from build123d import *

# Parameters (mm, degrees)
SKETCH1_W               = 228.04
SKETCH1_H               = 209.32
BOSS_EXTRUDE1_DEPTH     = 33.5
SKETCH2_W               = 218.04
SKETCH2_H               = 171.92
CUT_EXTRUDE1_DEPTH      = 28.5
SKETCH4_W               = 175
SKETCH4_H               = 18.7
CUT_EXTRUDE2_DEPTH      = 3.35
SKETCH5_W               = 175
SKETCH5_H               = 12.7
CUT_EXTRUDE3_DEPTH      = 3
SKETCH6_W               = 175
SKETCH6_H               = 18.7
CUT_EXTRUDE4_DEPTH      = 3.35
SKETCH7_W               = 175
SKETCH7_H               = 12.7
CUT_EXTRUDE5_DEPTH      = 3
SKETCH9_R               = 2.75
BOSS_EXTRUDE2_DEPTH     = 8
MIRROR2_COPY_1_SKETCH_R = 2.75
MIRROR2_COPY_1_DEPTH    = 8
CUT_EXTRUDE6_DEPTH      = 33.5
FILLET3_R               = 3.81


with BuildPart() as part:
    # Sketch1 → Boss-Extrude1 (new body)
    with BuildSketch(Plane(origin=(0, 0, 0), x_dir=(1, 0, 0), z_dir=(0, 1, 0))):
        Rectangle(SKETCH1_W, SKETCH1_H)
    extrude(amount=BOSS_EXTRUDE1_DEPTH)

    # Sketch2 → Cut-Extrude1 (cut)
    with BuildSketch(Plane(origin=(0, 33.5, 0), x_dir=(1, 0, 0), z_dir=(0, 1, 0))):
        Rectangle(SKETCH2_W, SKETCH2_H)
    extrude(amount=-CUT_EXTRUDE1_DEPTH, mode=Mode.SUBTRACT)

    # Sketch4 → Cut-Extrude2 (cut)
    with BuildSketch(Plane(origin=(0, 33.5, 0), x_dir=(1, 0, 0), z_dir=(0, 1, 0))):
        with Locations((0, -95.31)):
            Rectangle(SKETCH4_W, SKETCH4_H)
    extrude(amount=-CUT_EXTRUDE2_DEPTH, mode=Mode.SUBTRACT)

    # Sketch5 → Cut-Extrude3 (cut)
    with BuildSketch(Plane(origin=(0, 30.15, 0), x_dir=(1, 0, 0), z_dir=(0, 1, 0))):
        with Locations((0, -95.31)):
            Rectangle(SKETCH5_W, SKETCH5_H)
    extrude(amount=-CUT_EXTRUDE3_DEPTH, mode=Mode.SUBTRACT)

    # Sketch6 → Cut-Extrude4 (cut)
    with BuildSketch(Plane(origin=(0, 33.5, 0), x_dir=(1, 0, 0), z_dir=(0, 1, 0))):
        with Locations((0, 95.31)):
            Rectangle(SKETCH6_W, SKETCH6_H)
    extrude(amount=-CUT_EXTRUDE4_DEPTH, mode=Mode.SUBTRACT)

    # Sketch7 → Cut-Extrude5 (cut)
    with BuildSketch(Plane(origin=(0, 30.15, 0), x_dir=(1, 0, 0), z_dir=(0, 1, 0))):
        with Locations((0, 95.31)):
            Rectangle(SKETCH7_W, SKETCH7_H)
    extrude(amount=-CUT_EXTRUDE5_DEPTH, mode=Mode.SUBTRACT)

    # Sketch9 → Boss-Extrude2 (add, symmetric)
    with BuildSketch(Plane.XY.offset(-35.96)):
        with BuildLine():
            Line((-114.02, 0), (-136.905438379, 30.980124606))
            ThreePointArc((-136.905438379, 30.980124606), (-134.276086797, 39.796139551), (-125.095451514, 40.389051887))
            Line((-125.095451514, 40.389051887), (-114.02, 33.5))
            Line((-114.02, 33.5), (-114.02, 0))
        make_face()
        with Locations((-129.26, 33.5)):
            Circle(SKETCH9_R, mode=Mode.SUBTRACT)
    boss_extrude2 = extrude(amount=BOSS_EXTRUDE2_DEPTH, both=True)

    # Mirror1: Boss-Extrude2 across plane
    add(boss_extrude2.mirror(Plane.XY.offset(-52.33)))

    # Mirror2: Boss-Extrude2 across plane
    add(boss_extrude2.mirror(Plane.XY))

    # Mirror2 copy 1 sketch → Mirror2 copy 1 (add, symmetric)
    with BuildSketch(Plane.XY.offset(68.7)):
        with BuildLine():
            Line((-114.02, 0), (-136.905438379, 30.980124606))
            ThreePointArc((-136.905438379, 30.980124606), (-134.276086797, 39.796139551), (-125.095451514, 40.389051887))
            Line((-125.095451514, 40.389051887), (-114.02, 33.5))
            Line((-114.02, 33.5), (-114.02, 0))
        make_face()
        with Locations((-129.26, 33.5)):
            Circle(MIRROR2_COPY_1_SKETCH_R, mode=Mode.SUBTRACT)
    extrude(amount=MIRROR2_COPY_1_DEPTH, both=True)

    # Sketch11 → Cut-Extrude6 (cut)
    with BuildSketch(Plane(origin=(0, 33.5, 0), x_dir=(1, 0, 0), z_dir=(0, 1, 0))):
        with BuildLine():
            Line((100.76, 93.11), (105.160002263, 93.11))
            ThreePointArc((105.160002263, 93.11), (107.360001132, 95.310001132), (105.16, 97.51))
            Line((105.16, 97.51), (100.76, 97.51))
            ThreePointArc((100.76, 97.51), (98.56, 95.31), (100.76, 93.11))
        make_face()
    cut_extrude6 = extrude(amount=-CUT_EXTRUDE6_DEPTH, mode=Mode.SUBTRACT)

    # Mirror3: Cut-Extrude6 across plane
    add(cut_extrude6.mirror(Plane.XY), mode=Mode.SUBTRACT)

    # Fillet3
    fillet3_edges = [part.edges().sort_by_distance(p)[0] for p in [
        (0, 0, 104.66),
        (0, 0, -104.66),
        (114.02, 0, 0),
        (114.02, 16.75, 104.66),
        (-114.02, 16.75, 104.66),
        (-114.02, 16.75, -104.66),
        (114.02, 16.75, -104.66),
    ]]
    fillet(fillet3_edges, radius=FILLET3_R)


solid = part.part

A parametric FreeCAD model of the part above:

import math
import FreeCAD as App
import Part
import Sketcher
from FreeCAD import Vector
Q = App.Units.Quantity


def edges_at(feature, points):
    """Names of the edges that pass closest to the given points."""
    edges = feature.Shape.Edges
    near = lambda p: min(range(len(edges)), key=lambda i: edges[i].distToShape(Part.Vertex(*p))[0])
    return sorted({f"Edge{near(p) + 1}" for p in points})

doc = App.newDocument("Part")
params = doc.addObject("Spreadsheet::Sheet", "Params")
for row, (alias, value) in enumerate([
    ("sketch1_width", "228.04 mm"),
    ("sketch1_height", "209.32 mm"),
    ("pad1_length", "33.5 mm"),
    ("sketch2_width", "218.04 mm"),
    ("sketch2_height", "171.92 mm"),
    ("pocket1_length", "28.5 mm"),
    ("sketch3_width", "175 mm"),
    ("sketch3_height", "18.7 mm"),
    ("pocket2_length", "3.35 mm"),
    ("sketch4_width", "175 mm"),
    ("sketch4_height", "12.7 mm"),
    ("pocket3_length", "3 mm"),
    ("sketch5_width", "175 mm"),
    ("sketch5_height", "18.7 mm"),
    ("pocket4_length", "3.35 mm"),
    ("sketch6_width", "175 mm"),
    ("sketch6_height", "12.7 mm"),
    ("pocket5_length", "3 mm"),
    ("sketch7_diameter", "5.5 mm"),
    ("sketch7_radius", "8.05 mm"),
    ("sketch7_height", "33.5 mm"),
    ("pad2_length", "16 mm"),
    ("sketch8_diameter", "5.5 mm"),
    ("sketch8_radius", "8.05 mm"),
    ("sketch8_height", "33.5 mm"),
    ("pad3_length", "16 mm"),
    ("sketch9_radius", "2.2 mm"),
    ("sketch9_width", "4.4 mm"),
    ("pocket6_length", "33.5 mm"),
    ("fillet_radius", "3.81 mm"),
], start=1):
    params.set(f"A{row}", alias)
    params.set(f"B{row}", "=" + value)
    params.setAlias(f"B{row}", alias)

body = doc.addObject("PartDesign::Body", "Body")

# Sketch on XZ plane
sketch1 = body.newObject("Sketcher::SketchObject", "Sketch")
sketch1.AttachmentSupport = (doc.getObject("XZ_Plane"), [""])
sketch1.MapMode = "FlatFace"
sketch1.addGeometry(Part.LineSegment(Vector(-114, -105, 0), Vector(-114, 105, 0)), False)
sketch1.addGeometry(Part.LineSegment(Vector(-114, 105, 0), Vector(114, 105, 0)), False)
sketch1.addGeometry(Part.LineSegment(Vector(114, 105, 0), Vector(114, -105, 0)), False)
sketch1.addGeometry(Part.LineSegment(Vector(114, -105, 0), Vector(-114, -105, 0)), False)
sketch1.addConstraint(Sketcher.Constraint("Coincident", 0, 2, 1, 1))
sketch1.addConstraint(Sketcher.Constraint("Coincident", 1, 2, 2, 1))
sketch1.addConstraint(Sketcher.Constraint("Coincident", 2, 2, 3, 1))
sketch1.addConstraint(Sketcher.Constraint("Coincident", 3, 2, 0, 1))
sketch1.addConstraint(Sketcher.Constraint("Vertical", 0))
sketch1.addConstraint(Sketcher.Constraint("Horizontal", 1))
sketch1.addConstraint(Sketcher.Constraint("Vertical", 2))
sketch1.addConstraint(Sketcher.Constraint("Horizontal", 3))
sketch1.addConstraint(Sketcher.Constraint("Symmetric", 0, 2, 2, 2, -1, 1))
sketch1.addConstraint(Sketcher.Constraint("DistanceX", 1, 1, 1, 2, Q("228.04 mm")))
sketch1.addConstraint(Sketcher.Constraint("DistanceY", 0, 1, 0, 2, Q("209.32 mm")))
sketch1.setExpression("Constraints[9]", "Params.sketch1_width")
sketch1.setExpression("Constraints[10]", "Params.sketch1_height")
pad1 = body.newObject("PartDesign::Pad", "Pad")
pad1.Profile = sketch1
pad1.setExpression("Length", "Params.pad1_length")
pad1.Reversed = True

# Sketch on XZ plane
sketch2 = body.newObject("Sketcher::SketchObject", "Sketch001")
sketch2.AttachmentSupport = (doc.getObject("XZ_Plane"), [""])
sketch2.MapMode = "FlatFace"
sketch2.AttachmentOffset = App.Placement(Vector(0, 0, -33.5), App.Rotation())
sketch2.addGeometry(Part.LineSegment(Vector(-109, -86, 0), Vector(-109, 86, 0)), False)
sketch2.addGeometry(Part.LineSegment(Vector(-109, 86, 0), Vector(109, 86, 0)), False)
sketch2.addGeometry(Part.LineSegment(Vector(109, 86, 0), Vector(109, -86, 0)), False)
sketch2.addGeometry(Part.LineSegment(Vector(109, -86, 0), Vector(-109, -86, 0)), False)
sketch2.addConstraint(Sketcher.Constraint("Coincident", 0, 2, 1, 1))
sketch2.addConstraint(Sketcher.Constraint("Coincident", 1, 2, 2, 1))
sketch2.addConstraint(Sketcher.Constraint("Coincident", 2, 2, 3, 1))
sketch2.addConstraint(Sketcher.Constraint("Coincident", 3, 2, 0, 1))
sketch2.addConstraint(Sketcher.Constraint("Vertical", 0))
sketch2.addConstraint(Sketcher.Constraint("Horizontal", 1))
sketch2.addConstraint(Sketcher.Constraint("Vertical", 2))
sketch2.addConstraint(Sketcher.Constraint("Horizontal", 3))
sketch2.addConstraint(Sketcher.Constraint("Symmetric", 0, 2, 2, 2, -1, 1))
sketch2.addConstraint(Sketcher.Constraint("DistanceX", 1, 1, 1, 2, Q("218.04 mm")))
sketch2.addConstraint(Sketcher.Constraint("DistanceY", 0, 1, 0, 2, Q("171.92 mm")))
sketch2.setExpression("Constraints[9]", "Params.sketch2_width")
sketch2.setExpression("Constraints[10]", "Params.sketch2_height")
pocket1 = body.newObject("PartDesign::Pocket", "Pocket")
pocket1.Profile = sketch2
pocket1.setExpression("Length", "Params.pocket1_length")
pocket1.Reversed = True

# Sketch on XZ plane
sketch3 = body.newObject("Sketcher::SketchObject", "Sketch002")
sketch3.AttachmentSupport = (doc.getObject("XZ_Plane"), [""])
sketch3.MapMode = "FlatFace"
sketch3.AttachmentOffset = App.Placement(Vector(0, 0, -33.5), App.Rotation())
sketch3.addGeometry(Part.LineSegment(Vector(-88, 86, 0), Vector(-88, 105, 0)), False)
sketch3.addGeometry(Part.LineSegment(Vector(-88, 105, 0), Vector(88, 105, 0)), False)
sketch3.addGeometry(Part.LineSegment(Vector(88, 105, 0), Vector(88, 86, 0)), False)
sketch3.addGeometry(Part.LineSegment(Vector(88, 86, 0), Vector(-88, 86, 0)), False)
sketch3.addConstraint(Sketcher.Constraint("Coincident", 0, 2, 1, 1))
sketch3.addConstraint(Sketcher.Constraint("Coincident", 1, 2, 2, 1))
sketch3.addConstraint(Sketcher.Constraint("Coincident", 2, 2, 3, 1))
sketch3.addConstraint(Sketcher.Constraint("Coincident", 3, 2, 0, 1))
sketch3.addConstraint(Sketcher.Constraint("Vertical", 0))
sketch3.addConstraint(Sketcher.Constraint("Horizontal", 1))
sketch3.addConstraint(Sketcher.Constraint("Vertical", 2))
sketch3.addConstraint(Sketcher.Constraint("Horizontal", 3))
sketch3.addConstraint(Sketcher.Constraint("DistanceX", 1, 1, 1, 2, Q("175 mm")))
sketch3.addConstraint(Sketcher.Constraint("DistanceY", 0, 1, 0, 2, Q("18.7 mm")))
sketch3.addConstraint(Sketcher.Constraint("DistanceX", 0, 2, -1, 1, Q("87.5 mm")))
sketch3.addConstraint(Sketcher.Constraint("DistanceY", -1, 1, 0, 2, Q("104.66 mm")))
sketch3.setExpression("Constraints[8]", "Params.sketch3_width")
sketch3.setExpression("Constraints[9]", "Params.sketch3_height")
pocket2 = body.newObject("PartDesign::Pocket", "Pocket001")
pocket2.Profile = sketch3
pocket2.setExpression("Length", "Params.pocket2_length")
pocket2.Reversed = True

# Sketch on XZ plane
sketch4 = body.newObject("Sketcher::SketchObject", "Sketch003")
sketch4.AttachmentSupport = (doc.getObject("XZ_Plane"), [""])
sketch4.MapMode = "FlatFace"
sketch4.AttachmentOffset = App.Placement(Vector(0, 0, -30.15), App.Rotation())
sketch4.addGeometry(Part.LineSegment(Vector(-88, 89, 0), Vector(-88, 102, 0)), False)
sketch4.addGeometry(Part.LineSegment(Vector(-88, 102, 0), Vector(88, 102, 0)), False)
sketch4.addGeometry(Part.LineSegment(Vector(88, 102, 0), Vector(88, 89, 0)), False)
sketch4.addGeometry(Part.LineSegment(Vector(88, 89, 0), Vector(-88, 89, 0)), False)
sketch4.addConstraint(Sketcher.Constraint("Coincident", 0, 2, 1, 1))
sketch4.addConstraint(Sketcher.Constraint("Coincident", 1, 2, 2, 1))
sketch4.addConstraint(Sketcher.Constraint("Coincident", 2, 2, 3, 1))
sketch4.addConstraint(Sketcher.Constraint("Coincident", 3, 2, 0, 1))
sketch4.addConstraint(Sketcher.Constraint("Vertical", 0))
sketch4.addConstraint(Sketcher.Constraint("Horizontal", 1))
sketch4.addConstraint(Sketcher.Constraint("Vertical", 2))
sketch4.addConstraint(Sketcher.Constraint("Horizontal", 3))
sketch4.addConstraint(Sketcher.Constraint("DistanceX", 1, 1, 1, 2, Q("175 mm")))
sketch4.addConstraint(Sketcher.Constraint("DistanceY", 0, 1, 0, 2, Q("12.7 mm")))
sketch4.addConstraint(Sketcher.Constraint("DistanceX", 0, 2, -1, 1, Q("87.5 mm")))
sketch4.addConstraint(Sketcher.Constraint("DistanceY", -1, 1, 0, 2, Q("101.66 mm")))
sketch4.setExpression("Constraints[8]", "Params.sketch4_width")
sketch4.setExpression("Constraints[9]", "Params.sketch4_height")
pocket3 = body.newObject("PartDesign::Pocket", "Pocket002")
pocket3.Profile = sketch4
pocket3.setExpression("Length", "Params.pocket3_length")
pocket3.Reversed = True

# Sketch on XZ plane
sketch5 = body.newObject("Sketcher::SketchObject", "Sketch004")
sketch5.AttachmentSupport = (doc.getObject("XZ_Plane"), [""])
sketch5.MapMode = "FlatFace"
sketch5.AttachmentOffset = App.Placement(Vector(0, 0, -33.5), App.Rotation())
sketch5.addGeometry(Part.LineSegment(Vector(-88, -105, 0), Vector(-88, -86, 0)), False)
sketch5.addGeometry(Part.LineSegment(Vector(-88, -86, 0), Vector(88, -86, 0)), False)
sketch5.addGeometry(Part.LineSegment(Vector(88, -86, 0), Vector(88, -105, 0)), False)
sketch5.addGeometry(Part.LineSegment(Vector(88, -105, 0), Vector(-88, -105, 0)), False)
sketch5.addConstraint(Sketcher.Constraint("Coincident", 0, 2, 1, 1))
sketch5.addConstraint(Sketcher.Constraint("Coincident", 1, 2, 2, 1))
sketch5.addConstraint(Sketcher.Constraint("Coincident", 2, 2, 3, 1))
sketch5.addConstraint(Sketcher.Constraint("Coincident", 3, 2, 0, 1))
sketch5.addConstraint(Sketcher.Constraint("Vertical", 0))
sketch5.addConstraint(Sketcher.Constraint("Horizontal", 1))
sketch5.addConstraint(Sketcher.Constraint("Vertical", 2))
sketch5.addConstraint(Sketcher.Constraint("Horizontal", 3))
sketch5.addConstraint(Sketcher.Constraint("DistanceX", 1, 1, 1, 2, Q("175 mm")))
sketch5.addConstraint(Sketcher.Constraint("DistanceY", 0, 1, 0, 2, Q("18.7 mm")))
sketch5.addConstraint(Sketcher.Constraint("DistanceX", 0, 2, -1, 1, Q("87.5 mm")))
sketch5.addConstraint(Sketcher.Constraint("DistanceY", 0, 2, -1, 1, Q("85.96 mm")))
sketch5.setExpression("Constraints[8]", "Params.sketch5_width")
sketch5.setExpression("Constraints[9]", "Params.sketch5_height")
pocket4 = body.newObject("PartDesign::Pocket", "Pocket003")
pocket4.Profile = sketch5
pocket4.setExpression("Length", "Params.pocket4_length")
pocket4.Reversed = True

# Sketch on XZ plane
sketch6 = body.newObject("Sketcher::SketchObject", "Sketch005")
sketch6.AttachmentSupport = (doc.getObject("XZ_Plane"), [""])
sketch6.MapMode = "FlatFace"
sketch6.AttachmentOffset = App.Placement(Vector(0, 0, -30.15), App.Rotation())
sketch6.addGeometry(Part.LineSegment(Vector(-88, -102, 0), Vector(-88, -89, 0)), False)
sketch6.addGeometry(Part.LineSegment(Vector(-88, -89, 0), Vector(88, -89, 0)), False)
sketch6.addGeometry(Part.LineSegment(Vector(88, -89, 0), Vector(88, -102, 0)), False)
sketch6.addGeometry(Part.LineSegment(Vector(88, -102, 0), Vector(-88, -102, 0)), False)
sketch6.addConstraint(Sketcher.Constraint("Coincident", 0, 2, 1, 1))
sketch6.addConstraint(Sketcher.Constraint("Coincident", 1, 2, 2, 1))
sketch6.addConstraint(Sketcher.Constraint("Coincident", 2, 2, 3, 1))
sketch6.addConstraint(Sketcher.Constraint("Coincident", 3, 2, 0, 1))
sketch6.addConstraint(Sketcher.Constraint("Vertical", 0))
sketch6.addConstraint(Sketcher.Constraint("Horizontal", 1))
sketch6.addConstraint(Sketcher.Constraint("Vertical", 2))
sketch6.addConstraint(Sketcher.Constraint("Horizontal", 3))
sketch6.addConstraint(Sketcher.Constraint("DistanceX", 1, 1, 1, 2, Q("175 mm")))
sketch6.addConstraint(Sketcher.Constraint("DistanceY", 0, 1, 0, 2, Q("12.7 mm")))
sketch6.addConstraint(Sketcher.Constraint("DistanceX", 0, 2, -1, 1, Q("87.5 mm")))
sketch6.addConstraint(Sketcher.Constraint("DistanceY", 0, 2, -1, 1, Q("88.96 mm")))
sketch6.setExpression("Constraints[8]", "Params.sketch6_width")
sketch6.setExpression("Constraints[9]", "Params.sketch6_height")
pocket5 = body.newObject("PartDesign::Pocket", "Pocket004")
pocket5.Profile = sketch6
pocket5.setExpression("Length", "Params.pocket5_length")
pocket5.Reversed = True

# Sketch on XY plane
sketch7 = body.newObject("Sketcher::SketchObject", "Sketch006")
sketch7.AttachmentSupport = (doc.getObject("XY_Plane"), [""])
sketch7.MapMode = "FlatFace"
sketch7.AttachmentOffset = App.Placement(Vector(0, 0, -35.96), App.Rotation())
sketch7.addGeometry(Part.LineSegment(Vector(-136.9, 31, 0), Vector(-114, 0, 0)), False)
sketch7.addGeometry(Part.LineSegment(Vector(-114, 0, 0), Vector(-114, 33.5, 0)), False)
sketch7.addGeometry(Part.LineSegment(Vector(-114, 33.5, 0), Vector(-125.1, 40.4, 0)), False)
sketch7.addGeometry(Part.ArcOfCircle(Part.Circle(Vector(-129.3, 33.5, 0), Vector(0, 0, 1), 8.1), math.radians(59), math.radians(198)), False)
sketch7.addGeometry(Part.Circle(Vector(-129.3, 33.5, 0), Vector(0, 0, 1), 2.8), False)
sketch7.addConstraint(Sketcher.Constraint("Coincident", 0, 2, 1, 1))
sketch7.addConstraint(Sketcher.Constraint("Coincident", 1, 2, 2, 1))
sketch7.addConstraint(Sketcher.Constraint("Coincident", 2, 2, 3, 1))
sketch7.addConstraint(Sketcher.Constraint("Coincident", 3, 2, 0, 1))
sketch7.addConstraint(Sketcher.Constraint("Vertical", 1))
sketch7.addConstraint(Sketcher.Constraint("Coincident", 4, 3, 3, 3))
sketch7.addConstraint(Sketcher.Constraint("PointOnObject", 0, 2, -1))
sketch7.addConstraint(Sketcher.Constraint("Horizontal", 4, 3, 1, 2))
sketch7.addConstraint(Sketcher.Constraint("Diameter", 4, Q("5.5 mm")))
sketch7.addConstraint(Sketcher.Constraint("Radius", 3, Q("8.05 mm")))
sketch7.addConstraint(Sketcher.Constraint("DistanceY", 1, 1, 1, 2, Q("33.5 mm")))
sketch7.addConstraint(Sketcher.Constraint("DistanceX", 3, 3, -1, 1, Q("129.26 mm")))
sketch7.addConstraint(Sketcher.Constraint("DistanceX", 0, 2, -1, 1, Q("114.02 mm")))
sketch7.addConstraint(Sketcher.Constraint("Distance", 0, Q("38.516378 mm")))
sketch7.addConstraint(Sketcher.Constraint("DistanceX", 2, 2, -1, 1, Q("125.095452 mm")))
sketch7.setExpression("Constraints[8]", "Params.sketch7_diameter")
sketch7.setExpression("Constraints[9]", "Params.sketch7_radius")
sketch7.setExpression("Constraints[10]", "Params.sketch7_height")
pad2 = body.newObject("PartDesign::Pad", "Pad001")
pad2.Profile = sketch7
pad2.setExpression("Length", "Params.pad2_length")
pad2.Midplane = True
doc.recompute()

datumplane = body.newObject("PartDesign::Plane", "DatumPlane")
datumplane.AttachmentSupport = (doc.getObject("XY_Plane"), [""])
datumplane.MapMode = "FlatFace"
datumplane.AttachmentOffset = App.Placement(Vector(0, 0, -52.33), App.Rotation())
mirrored = body.newObject("PartDesign::Mirrored", "Mirrored")
mirrored.Originals = [pad2]
mirrored.MirrorPlane = (datumplane, [""])
body.Tip = mirrored
doc.recompute()

mirrored2 = body.newObject("PartDesign::Mirrored", "Mirrored001")
mirrored2.Originals = [pad2]
mirrored2.MirrorPlane = (doc.getObject("XY_Plane"), [""])
body.Tip = mirrored2

# Sketch on XY plane
sketch8 = body.newObject("Sketcher::SketchObject", "Sketch007")
sketch8.AttachmentSupport = (doc.getObject("XY_Plane"), [""])
sketch8.MapMode = "FlatFace"
sketch8.AttachmentOffset = App.Placement(Vector(0, 0, 68.7), App.Rotation())
sketch8.addGeometry(Part.LineSegment(Vector(-136.9, 31, 0), Vector(-114, 0, 0)), False)
sketch8.addGeometry(Part.LineSegment(Vector(-114, 0, 0), Vector(-114, 33.5, 0)), False)
sketch8.addGeometry(Part.LineSegment(Vector(-114, 33.5, 0), Vector(-125.1, 40.4, 0)), False)
sketch8.addGeometry(Part.ArcOfCircle(Part.Circle(Vector(-129.3, 33.5, 0), Vector(0, 0, 1), 8.1), math.radians(59), math.radians(198)), False)
sketch8.addGeometry(Part.Circle(Vector(-129.3, 33.5, 0), Vector(0, 0, 1), 2.8), False)
sketch8.addConstraint(Sketcher.Constraint("Coincident", 0, 2, 1, 1))
sketch8.addConstraint(Sketcher.Constraint("Coincident", 1, 2, 2, 1))
sketch8.addConstraint(Sketcher.Constraint("Coincident", 2, 2, 3, 1))
sketch8.addConstraint(Sketcher.Constraint("Coincident", 3, 2, 0, 1))
sketch8.addConstraint(Sketcher.Constraint("Vertical", 1))
sketch8.addConstraint(Sketcher.Constraint("Coincident", 4, 3, 3, 3))
sketch8.addConstraint(Sketcher.Constraint("PointOnObject", 0, 2, -1))
sketch8.addConstraint(Sketcher.Constraint("Horizontal", 4, 3, 1, 2))
sketch8.addConstraint(Sketcher.Constraint("Diameter", 4, Q("5.5 mm")))
sketch8.addConstraint(Sketcher.Constraint("Radius", 3, Q("8.05 mm")))
sketch8.addConstraint(Sketcher.Constraint("DistanceY", 1, 1, 1, 2, Q("33.5 mm")))
sketch8.addConstraint(Sketcher.Constraint("DistanceX", 3, 3, -1, 1, Q("129.26 mm")))
sketch8.addConstraint(Sketcher.Constraint("DistanceX", 0, 2, -1, 1, Q("114.02 mm")))
sketch8.addConstraint(Sketcher.Constraint("Distance", 0, Q("38.516378 mm")))
sketch8.addConstraint(Sketcher.Constraint("DistanceX", 2, 2, -1, 1, Q("125.095452 mm")))
sketch8.setExpression("Constraints[8]", "Params.sketch8_diameter")
sketch8.setExpression("Constraints[9]", "Params.sketch8_radius")
sketch8.setExpression("Constraints[10]", "Params.sketch8_height")
pad3 = body.newObject("PartDesign::Pad", "Pad002")
pad3.Profile = sketch8
pad3.setExpression("Length", "Params.pad3_length")
pad3.Midplane = True

# Sketch on XZ plane
sketch9 = body.newObject("Sketcher::SketchObject", "Sketch008")
sketch9.AttachmentSupport = (doc.getObject("XZ_Plane"), [""])
sketch9.MapMode = "FlatFace"
sketch9.AttachmentOffset = App.Placement(Vector(0, 0, -33.5), App.Rotation())
sketch9.addGeometry(Part.LineSegment(Vector(100.8, -93.1, 0), Vector(105.2, -93.1, 0)), False)
sketch9.addGeometry(Part.ArcOfCircle(Part.Circle(Vector(105.2, -95.3, 0), Vector(0, 0, 1), 2.2), math.radians(-90), math.radians(90)), False)
sketch9.addGeometry(Part.LineSegment(Vector(105.2, -97.5, 0), Vector(100.8, -97.5, 0)), False)
sketch9.addGeometry(Part.ArcOfCircle(Part.Circle(Vector(100.8, -95.3, 0), Vector(0, 0, 1), 2.2), math.radians(90), math.radians(270)), False)
sketch9.addConstraint(Sketcher.Constraint("Tangent", 0, 2, 1, 2))
sketch9.addConstraint(Sketcher.Constraint("Tangent", 1, 1, 2, 1))
sketch9.addConstraint(Sketcher.Constraint("Tangent", 2, 2, 3, 2))
sketch9.addConstraint(Sketcher.Constraint("Tangent", 3, 1, 0, 1))
sketch9.addConstraint(Sketcher.Constraint("Horizontal", 0))
sketch9.addConstraint(Sketcher.Constraint("Horizontal", 2))
sketch9.addConstraint(Sketcher.Constraint("Radius", 1, Q("2.2 mm")))
sketch9.addConstraint(Sketcher.Constraint("DistanceX", 2, 2, 2, 1, Q("4.4 mm")))
sketch9.addConstraint(Sketcher.Constraint("DistanceX", -1, 1, 1, 3, Q("105.160001 mm")))
sketch9.addConstraint(Sketcher.Constraint("DistanceY", 1, 3, -1, 1, Q("95.31 mm")))
sketch9.setExpression("Constraints[6]", "Params.sketch9_radius")
sketch9.setExpression("Constraints[7]", "Params.sketch9_width")
pocket6 = body.newObject("PartDesign::Pocket", "Pocket005")
pocket6.Profile = sketch9
pocket6.setExpression("Length", "Params.pocket6_length")
pocket6.Reversed = True
doc.recompute()

mirrored3 = body.newObject("PartDesign::Mirrored", "Mirrored002")
mirrored3.Originals = [pocket6]
mirrored3.MirrorPlane = (doc.getObject("XY_Plane"), [""])
body.Tip = mirrored3
doc.recompute()

fillet = body.newObject("PartDesign::Fillet", "Fillet")
fillet.Base = (mirrored3, edges_at(mirrored3, [
    (0, 0, 104.66),
    (0, 0, -104.66),
    (114.02, 0, 0),
    (114.02, 16.75, 104.66),
    (-114.02, 16.75, 104.66),
    (-114.02, 16.75, -104.66),
    (114.02, 16.75, -104.66),
]))
fillet.setExpression("Radius", "Params.fillet_radius")

doc.recompute()
